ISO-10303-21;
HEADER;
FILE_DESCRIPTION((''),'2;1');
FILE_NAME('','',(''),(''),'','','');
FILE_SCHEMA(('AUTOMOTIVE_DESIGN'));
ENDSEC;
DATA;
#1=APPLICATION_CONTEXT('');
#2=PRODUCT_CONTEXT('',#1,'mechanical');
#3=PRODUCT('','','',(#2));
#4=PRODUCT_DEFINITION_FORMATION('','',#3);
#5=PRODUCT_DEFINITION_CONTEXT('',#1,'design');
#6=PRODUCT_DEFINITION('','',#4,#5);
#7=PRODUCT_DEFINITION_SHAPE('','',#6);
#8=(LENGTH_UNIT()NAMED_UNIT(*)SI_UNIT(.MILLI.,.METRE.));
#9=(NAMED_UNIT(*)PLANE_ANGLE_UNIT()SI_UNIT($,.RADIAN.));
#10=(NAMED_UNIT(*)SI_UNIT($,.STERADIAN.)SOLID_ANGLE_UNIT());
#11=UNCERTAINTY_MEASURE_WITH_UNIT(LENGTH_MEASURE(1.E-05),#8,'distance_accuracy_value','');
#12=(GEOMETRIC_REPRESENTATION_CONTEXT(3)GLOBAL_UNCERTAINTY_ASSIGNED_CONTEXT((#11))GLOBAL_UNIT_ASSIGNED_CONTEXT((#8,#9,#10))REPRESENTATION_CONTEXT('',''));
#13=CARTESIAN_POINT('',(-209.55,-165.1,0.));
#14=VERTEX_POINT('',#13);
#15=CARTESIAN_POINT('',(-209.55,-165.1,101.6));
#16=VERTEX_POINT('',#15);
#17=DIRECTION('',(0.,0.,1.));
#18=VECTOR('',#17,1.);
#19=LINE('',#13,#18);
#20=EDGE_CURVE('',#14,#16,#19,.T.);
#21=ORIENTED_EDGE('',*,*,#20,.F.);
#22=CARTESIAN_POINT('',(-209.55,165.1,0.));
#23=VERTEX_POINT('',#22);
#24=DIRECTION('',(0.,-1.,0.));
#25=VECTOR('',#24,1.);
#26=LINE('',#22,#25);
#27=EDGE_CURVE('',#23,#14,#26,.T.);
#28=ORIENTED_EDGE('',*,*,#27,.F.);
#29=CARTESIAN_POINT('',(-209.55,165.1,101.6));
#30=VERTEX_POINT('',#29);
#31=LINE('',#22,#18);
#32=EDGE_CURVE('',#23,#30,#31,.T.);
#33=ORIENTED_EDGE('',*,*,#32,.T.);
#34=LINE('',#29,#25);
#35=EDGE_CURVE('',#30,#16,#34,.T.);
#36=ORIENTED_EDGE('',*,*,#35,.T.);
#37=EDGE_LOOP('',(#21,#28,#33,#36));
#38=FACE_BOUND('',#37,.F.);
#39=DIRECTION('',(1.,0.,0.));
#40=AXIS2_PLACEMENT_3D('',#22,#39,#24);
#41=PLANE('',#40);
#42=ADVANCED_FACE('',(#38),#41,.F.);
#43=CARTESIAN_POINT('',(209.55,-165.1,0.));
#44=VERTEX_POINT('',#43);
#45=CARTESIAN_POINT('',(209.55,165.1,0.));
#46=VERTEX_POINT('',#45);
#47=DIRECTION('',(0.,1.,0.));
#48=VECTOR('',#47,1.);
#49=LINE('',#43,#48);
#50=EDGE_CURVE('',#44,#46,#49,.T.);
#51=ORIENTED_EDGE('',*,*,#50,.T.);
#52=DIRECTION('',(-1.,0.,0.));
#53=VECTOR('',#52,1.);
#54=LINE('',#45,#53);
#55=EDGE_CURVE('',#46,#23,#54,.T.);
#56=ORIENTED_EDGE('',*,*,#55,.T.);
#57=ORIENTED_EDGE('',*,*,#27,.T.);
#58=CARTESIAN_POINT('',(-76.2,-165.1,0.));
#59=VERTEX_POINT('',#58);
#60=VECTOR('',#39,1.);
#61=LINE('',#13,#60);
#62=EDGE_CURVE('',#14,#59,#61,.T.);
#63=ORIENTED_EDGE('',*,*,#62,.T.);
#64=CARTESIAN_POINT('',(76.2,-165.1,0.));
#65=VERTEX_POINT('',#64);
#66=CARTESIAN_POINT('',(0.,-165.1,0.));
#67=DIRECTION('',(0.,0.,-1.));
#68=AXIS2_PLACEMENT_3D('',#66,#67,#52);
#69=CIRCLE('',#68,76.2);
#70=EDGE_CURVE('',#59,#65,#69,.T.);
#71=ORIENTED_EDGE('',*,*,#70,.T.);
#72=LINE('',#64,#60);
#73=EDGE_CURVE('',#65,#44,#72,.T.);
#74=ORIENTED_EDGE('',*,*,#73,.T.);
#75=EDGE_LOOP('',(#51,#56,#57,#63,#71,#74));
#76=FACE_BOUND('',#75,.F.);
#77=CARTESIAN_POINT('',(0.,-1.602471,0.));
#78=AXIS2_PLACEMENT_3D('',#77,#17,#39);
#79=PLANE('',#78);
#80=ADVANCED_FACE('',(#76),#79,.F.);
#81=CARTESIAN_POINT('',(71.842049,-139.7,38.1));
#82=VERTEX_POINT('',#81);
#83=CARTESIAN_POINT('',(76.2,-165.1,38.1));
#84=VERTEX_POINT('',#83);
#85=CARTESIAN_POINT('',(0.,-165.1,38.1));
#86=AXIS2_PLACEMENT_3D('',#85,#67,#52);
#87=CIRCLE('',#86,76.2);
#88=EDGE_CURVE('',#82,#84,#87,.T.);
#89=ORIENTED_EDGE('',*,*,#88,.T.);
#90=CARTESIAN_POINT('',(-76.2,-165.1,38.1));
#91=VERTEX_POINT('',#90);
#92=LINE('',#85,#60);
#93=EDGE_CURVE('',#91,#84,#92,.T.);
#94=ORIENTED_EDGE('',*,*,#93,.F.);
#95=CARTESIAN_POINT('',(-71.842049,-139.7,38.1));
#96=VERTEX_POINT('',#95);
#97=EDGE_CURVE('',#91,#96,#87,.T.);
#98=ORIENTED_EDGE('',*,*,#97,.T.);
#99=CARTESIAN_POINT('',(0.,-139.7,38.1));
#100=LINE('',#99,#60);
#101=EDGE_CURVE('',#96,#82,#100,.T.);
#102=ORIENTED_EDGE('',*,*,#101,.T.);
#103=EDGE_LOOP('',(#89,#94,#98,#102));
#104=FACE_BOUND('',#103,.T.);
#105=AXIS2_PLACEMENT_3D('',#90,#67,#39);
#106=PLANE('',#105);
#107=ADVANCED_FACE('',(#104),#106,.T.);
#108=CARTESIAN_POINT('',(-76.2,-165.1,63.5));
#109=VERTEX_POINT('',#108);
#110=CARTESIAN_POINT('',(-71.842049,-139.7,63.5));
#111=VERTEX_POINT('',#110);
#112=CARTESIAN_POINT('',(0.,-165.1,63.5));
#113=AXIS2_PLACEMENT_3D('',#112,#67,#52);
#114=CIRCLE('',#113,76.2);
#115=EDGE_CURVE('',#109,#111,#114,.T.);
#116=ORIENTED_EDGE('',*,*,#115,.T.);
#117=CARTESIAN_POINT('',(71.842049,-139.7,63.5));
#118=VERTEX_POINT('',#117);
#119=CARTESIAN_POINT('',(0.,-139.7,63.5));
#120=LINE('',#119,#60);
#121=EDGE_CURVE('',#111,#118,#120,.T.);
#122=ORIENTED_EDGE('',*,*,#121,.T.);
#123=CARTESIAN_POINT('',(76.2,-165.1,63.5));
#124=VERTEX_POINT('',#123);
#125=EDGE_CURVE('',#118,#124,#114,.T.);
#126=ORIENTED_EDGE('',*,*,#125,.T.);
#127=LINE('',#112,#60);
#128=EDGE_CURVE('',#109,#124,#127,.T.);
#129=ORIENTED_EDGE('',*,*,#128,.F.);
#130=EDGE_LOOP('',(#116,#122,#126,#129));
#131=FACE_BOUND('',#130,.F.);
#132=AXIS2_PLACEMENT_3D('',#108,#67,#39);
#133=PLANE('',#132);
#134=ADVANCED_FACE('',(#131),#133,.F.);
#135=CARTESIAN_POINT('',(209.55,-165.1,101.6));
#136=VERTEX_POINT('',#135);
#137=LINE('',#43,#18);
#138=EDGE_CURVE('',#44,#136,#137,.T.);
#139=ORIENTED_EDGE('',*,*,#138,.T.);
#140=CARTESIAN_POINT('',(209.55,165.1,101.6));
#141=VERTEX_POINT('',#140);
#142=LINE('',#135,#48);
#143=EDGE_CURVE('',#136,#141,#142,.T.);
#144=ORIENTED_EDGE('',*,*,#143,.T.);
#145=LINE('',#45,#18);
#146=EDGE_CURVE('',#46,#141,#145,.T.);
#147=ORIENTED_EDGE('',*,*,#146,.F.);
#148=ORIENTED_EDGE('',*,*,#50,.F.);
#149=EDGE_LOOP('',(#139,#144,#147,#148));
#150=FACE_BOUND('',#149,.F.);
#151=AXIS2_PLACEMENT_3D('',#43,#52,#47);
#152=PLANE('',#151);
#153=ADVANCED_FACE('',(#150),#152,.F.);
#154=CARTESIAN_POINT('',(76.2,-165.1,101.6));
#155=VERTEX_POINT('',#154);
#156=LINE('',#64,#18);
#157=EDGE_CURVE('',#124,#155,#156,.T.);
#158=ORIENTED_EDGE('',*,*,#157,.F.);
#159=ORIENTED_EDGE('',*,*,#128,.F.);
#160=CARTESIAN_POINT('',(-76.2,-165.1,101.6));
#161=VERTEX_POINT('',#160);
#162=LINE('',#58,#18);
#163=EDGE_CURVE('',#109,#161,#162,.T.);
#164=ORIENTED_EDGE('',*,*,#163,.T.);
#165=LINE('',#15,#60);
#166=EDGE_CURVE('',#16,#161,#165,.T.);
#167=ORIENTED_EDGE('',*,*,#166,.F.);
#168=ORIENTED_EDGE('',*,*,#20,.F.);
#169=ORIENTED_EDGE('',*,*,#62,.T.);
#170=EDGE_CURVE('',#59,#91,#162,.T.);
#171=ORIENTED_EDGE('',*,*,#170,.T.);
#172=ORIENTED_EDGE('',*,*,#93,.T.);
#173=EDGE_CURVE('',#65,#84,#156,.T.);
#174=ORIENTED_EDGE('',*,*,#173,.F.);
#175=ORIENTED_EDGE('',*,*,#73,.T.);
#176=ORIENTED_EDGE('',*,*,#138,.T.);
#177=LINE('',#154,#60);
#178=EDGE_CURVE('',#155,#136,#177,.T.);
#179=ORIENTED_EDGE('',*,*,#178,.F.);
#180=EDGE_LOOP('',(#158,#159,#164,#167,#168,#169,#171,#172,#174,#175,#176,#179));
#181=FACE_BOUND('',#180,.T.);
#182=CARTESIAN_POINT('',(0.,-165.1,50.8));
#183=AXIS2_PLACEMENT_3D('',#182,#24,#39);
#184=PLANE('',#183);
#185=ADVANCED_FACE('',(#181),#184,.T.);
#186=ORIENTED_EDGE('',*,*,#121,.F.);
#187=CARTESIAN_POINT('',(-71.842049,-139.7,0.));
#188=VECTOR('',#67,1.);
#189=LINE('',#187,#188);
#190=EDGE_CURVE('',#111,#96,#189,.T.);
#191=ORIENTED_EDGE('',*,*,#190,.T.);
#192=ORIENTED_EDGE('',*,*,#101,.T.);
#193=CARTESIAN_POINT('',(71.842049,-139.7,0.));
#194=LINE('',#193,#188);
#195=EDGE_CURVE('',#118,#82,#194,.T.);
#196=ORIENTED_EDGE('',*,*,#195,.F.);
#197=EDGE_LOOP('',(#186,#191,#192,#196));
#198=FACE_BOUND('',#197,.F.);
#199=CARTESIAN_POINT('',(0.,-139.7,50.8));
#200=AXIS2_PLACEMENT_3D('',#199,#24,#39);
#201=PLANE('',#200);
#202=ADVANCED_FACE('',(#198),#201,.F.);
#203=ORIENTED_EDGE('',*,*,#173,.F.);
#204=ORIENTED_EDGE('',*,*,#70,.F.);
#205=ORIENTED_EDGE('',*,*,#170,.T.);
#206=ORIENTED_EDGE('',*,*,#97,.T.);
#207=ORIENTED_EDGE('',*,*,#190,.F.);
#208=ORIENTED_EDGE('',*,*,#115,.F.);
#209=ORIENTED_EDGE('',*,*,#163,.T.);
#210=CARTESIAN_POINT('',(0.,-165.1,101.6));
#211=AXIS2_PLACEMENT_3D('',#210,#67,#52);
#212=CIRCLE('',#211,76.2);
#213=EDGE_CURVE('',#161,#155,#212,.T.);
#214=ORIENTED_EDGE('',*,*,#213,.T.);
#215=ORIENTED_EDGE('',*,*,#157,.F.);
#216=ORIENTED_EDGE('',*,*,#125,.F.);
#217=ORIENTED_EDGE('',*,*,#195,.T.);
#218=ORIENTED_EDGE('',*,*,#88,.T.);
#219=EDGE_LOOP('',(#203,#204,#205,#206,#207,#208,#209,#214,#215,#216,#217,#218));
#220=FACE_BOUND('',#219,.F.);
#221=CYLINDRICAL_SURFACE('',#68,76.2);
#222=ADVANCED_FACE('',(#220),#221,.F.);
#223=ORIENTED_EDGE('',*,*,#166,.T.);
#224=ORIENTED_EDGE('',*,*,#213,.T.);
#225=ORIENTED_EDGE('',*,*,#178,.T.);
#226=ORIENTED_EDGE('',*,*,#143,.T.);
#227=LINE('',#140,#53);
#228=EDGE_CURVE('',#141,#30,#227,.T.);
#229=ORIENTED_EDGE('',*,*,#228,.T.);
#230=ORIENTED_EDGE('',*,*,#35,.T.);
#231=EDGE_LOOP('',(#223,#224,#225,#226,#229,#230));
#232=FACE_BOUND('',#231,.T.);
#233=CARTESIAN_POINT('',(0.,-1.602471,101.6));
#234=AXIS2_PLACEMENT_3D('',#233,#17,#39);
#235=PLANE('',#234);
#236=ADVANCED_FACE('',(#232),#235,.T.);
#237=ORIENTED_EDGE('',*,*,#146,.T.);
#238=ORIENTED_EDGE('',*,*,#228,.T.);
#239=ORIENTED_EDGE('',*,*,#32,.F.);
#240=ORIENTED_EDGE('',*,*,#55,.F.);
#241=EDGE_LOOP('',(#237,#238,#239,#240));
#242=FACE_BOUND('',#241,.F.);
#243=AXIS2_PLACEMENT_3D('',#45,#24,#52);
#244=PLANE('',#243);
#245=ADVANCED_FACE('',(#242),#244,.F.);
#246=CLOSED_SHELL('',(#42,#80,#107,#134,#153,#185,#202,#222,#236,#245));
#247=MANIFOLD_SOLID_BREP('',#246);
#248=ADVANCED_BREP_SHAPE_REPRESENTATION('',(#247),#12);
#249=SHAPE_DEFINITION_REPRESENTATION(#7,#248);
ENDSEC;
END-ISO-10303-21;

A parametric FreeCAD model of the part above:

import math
import FreeCAD as App
import Part
import Sketcher

V = App.Vector
Q = App.Units.Quantity


def add_polygon(sketch, points):
    """Adds a closed chain of lines whose ends are joined by coincident constraints."""
    first, n = sketch.GeometryCount, len(points)
    for a, b in zip(points, points[1:] + points[:1]):
        sketch.addGeometry(Part.LineSegment(App.Vector(*a, 0), App.Vector(*b, 0)), False)
    for i in range(n):
        sketch.addConstraint(Sketcher.Constraint("Coincident", first + i, 2, first + (i + 1) % n, 1))

doc = App.newDocument("Part")
body = doc.addObject("PartDesign::Body", "Body")

# Sketch on XY plane
sketch1 = body.newObject("Sketcher::SketchObject", "Sketch")
sketch1.AttachmentSupport = (doc.getObject("XY_Plane"), [""])
sketch1.MapMode = "FlatFace"
sketch1.addGeometry(Part.LineSegment(V(210, 165, 0), V(-210, 165, 0)), False)
sketch1.addGeometry(Part.LineSegment(V(-210, 165, 0), V(-210, -165, 0)), False)
sketch1.addGeometry(Part.LineSegment(V(-210, -165, 0), V(-76, -165, 0)), False)
sketch1.addGeometry(Part.ArcOfCircle(Part.Circle(V(0, -165, 0), V(0, 0, 1), 76), math.radians(0), math.radians(180)), False)
sketch1.addGeometry(Part.LineSegment(V(76, -165, 0), V(210, -165, 0)), False)
sketch1.addGeometry(Part.LineSegment(V(210, -165, 0), V(210, 165, 0)), False)
sketch1.addConstraint(Sketcher.Constraint("Coincident", 0, 2, 1, 1))
sketch1.addConstraint(Sketcher.Constraint("Coincident", 1, 2, 2, 1))
sketch1.addConstraint(Sketcher.Constraint("Coincident", 2, 2, 3, 2))
sketch1.addConstraint(Sketcher.Constraint("Coincident", 3, 1, 4, 1))
sketch1.addConstraint(Sketcher.Constraint("Coincident", 4, 2, 5, 1))
sketch1.addConstraint(Sketcher.Constraint("Coincident", 5, 2, 0, 1))
sketch1.addConstraint(Sketcher.Constraint("Horizontal", 0))
sketch1.addConstraint(Sketcher.Constraint("Vertical", 1))
sketch1.addConstraint(Sketcher.Constraint("Horizontal", 2))
sketch1.addConstraint(Sketcher.Constraint("Horizontal", 4))
sketch1.addConstraint(Sketcher.Constraint("Vertical", 5))
sketch1.addConstraint(Sketcher.Constraint("Symmetric", 0, 2, 4, 2, -1, 1))
sketch1.addConstraint(Sketcher.Constraint("Symmetric", 2, 2, 3, 1, -2))
sketch1.addConstraint(Sketcher.Constraint("Horizontal", 3, 3, 1, 2))
sketch1.addConstraint(Sketcher.Constraint("Radius", 3, Q("3 in")))
sketch1.addConstraint(Sketcher.Constraint("DistanceY", 1, 2, 1, 1, Q("13 in")))
sketch1.addConstraint(Sketcher.Constraint("DistanceX", 0, 2, 0, 1, Q("16.5 in")))
pad1 = body.newObject("PartDesign::Pad", "Pad")
pad1.Profile = sketch1
pad1.Length = Q("4 in")

# Sketch on XZ plane
sketch2 = body.newObject("Sketcher::SketchObject", "Sketch001")
sketch2.AttachmentSupport = (doc.getObject("XZ_Plane"), [""])
sketch2.MapMode = "FlatFace"
sketch2.AttachmentOffset = App.Placement(V(0, 0, 6.5 * 25.4), App.Rotation())
add_polygon(sketch2, [(-76, 64), (-76, 38), (76, 38), (76, 64)])  # lines 0-3
sketch2.addConstraint(Sketcher.Constraint("Vertical", 0))
sketch2.addConstraint(Sketcher.Constraint("Horizontal", 1))
sketch2.addConstraint(Sketcher.Constraint("Vertical", 2))
sketch2.addConstraint(Sketcher.Constraint("Horizontal", 3))
sketch2.addConstraint(Sketcher.Constraint("DistanceX", 1, 1, 1, 2, Q("6 in")))
sketch2.addConstraint(Sketcher.Constraint("DistanceY", 0, 2, 0, 1, Q("1 in")))
sketch2.addConstraint(Sketcher.Constraint("DistanceX", 0, 2, -1, 1, Q("3 in")))
sketch2.addConstraint(Sketcher.Constraint("DistanceY", -1, 1, 0, 2, Q("1.5 in")))
pad2 = body.newObject("PartDesign::Pad", "Pad001")
pad2.Profile = sketch2
pad2.Length = Q("1 in")
pad2.Reversed = True

doc.recompute()
